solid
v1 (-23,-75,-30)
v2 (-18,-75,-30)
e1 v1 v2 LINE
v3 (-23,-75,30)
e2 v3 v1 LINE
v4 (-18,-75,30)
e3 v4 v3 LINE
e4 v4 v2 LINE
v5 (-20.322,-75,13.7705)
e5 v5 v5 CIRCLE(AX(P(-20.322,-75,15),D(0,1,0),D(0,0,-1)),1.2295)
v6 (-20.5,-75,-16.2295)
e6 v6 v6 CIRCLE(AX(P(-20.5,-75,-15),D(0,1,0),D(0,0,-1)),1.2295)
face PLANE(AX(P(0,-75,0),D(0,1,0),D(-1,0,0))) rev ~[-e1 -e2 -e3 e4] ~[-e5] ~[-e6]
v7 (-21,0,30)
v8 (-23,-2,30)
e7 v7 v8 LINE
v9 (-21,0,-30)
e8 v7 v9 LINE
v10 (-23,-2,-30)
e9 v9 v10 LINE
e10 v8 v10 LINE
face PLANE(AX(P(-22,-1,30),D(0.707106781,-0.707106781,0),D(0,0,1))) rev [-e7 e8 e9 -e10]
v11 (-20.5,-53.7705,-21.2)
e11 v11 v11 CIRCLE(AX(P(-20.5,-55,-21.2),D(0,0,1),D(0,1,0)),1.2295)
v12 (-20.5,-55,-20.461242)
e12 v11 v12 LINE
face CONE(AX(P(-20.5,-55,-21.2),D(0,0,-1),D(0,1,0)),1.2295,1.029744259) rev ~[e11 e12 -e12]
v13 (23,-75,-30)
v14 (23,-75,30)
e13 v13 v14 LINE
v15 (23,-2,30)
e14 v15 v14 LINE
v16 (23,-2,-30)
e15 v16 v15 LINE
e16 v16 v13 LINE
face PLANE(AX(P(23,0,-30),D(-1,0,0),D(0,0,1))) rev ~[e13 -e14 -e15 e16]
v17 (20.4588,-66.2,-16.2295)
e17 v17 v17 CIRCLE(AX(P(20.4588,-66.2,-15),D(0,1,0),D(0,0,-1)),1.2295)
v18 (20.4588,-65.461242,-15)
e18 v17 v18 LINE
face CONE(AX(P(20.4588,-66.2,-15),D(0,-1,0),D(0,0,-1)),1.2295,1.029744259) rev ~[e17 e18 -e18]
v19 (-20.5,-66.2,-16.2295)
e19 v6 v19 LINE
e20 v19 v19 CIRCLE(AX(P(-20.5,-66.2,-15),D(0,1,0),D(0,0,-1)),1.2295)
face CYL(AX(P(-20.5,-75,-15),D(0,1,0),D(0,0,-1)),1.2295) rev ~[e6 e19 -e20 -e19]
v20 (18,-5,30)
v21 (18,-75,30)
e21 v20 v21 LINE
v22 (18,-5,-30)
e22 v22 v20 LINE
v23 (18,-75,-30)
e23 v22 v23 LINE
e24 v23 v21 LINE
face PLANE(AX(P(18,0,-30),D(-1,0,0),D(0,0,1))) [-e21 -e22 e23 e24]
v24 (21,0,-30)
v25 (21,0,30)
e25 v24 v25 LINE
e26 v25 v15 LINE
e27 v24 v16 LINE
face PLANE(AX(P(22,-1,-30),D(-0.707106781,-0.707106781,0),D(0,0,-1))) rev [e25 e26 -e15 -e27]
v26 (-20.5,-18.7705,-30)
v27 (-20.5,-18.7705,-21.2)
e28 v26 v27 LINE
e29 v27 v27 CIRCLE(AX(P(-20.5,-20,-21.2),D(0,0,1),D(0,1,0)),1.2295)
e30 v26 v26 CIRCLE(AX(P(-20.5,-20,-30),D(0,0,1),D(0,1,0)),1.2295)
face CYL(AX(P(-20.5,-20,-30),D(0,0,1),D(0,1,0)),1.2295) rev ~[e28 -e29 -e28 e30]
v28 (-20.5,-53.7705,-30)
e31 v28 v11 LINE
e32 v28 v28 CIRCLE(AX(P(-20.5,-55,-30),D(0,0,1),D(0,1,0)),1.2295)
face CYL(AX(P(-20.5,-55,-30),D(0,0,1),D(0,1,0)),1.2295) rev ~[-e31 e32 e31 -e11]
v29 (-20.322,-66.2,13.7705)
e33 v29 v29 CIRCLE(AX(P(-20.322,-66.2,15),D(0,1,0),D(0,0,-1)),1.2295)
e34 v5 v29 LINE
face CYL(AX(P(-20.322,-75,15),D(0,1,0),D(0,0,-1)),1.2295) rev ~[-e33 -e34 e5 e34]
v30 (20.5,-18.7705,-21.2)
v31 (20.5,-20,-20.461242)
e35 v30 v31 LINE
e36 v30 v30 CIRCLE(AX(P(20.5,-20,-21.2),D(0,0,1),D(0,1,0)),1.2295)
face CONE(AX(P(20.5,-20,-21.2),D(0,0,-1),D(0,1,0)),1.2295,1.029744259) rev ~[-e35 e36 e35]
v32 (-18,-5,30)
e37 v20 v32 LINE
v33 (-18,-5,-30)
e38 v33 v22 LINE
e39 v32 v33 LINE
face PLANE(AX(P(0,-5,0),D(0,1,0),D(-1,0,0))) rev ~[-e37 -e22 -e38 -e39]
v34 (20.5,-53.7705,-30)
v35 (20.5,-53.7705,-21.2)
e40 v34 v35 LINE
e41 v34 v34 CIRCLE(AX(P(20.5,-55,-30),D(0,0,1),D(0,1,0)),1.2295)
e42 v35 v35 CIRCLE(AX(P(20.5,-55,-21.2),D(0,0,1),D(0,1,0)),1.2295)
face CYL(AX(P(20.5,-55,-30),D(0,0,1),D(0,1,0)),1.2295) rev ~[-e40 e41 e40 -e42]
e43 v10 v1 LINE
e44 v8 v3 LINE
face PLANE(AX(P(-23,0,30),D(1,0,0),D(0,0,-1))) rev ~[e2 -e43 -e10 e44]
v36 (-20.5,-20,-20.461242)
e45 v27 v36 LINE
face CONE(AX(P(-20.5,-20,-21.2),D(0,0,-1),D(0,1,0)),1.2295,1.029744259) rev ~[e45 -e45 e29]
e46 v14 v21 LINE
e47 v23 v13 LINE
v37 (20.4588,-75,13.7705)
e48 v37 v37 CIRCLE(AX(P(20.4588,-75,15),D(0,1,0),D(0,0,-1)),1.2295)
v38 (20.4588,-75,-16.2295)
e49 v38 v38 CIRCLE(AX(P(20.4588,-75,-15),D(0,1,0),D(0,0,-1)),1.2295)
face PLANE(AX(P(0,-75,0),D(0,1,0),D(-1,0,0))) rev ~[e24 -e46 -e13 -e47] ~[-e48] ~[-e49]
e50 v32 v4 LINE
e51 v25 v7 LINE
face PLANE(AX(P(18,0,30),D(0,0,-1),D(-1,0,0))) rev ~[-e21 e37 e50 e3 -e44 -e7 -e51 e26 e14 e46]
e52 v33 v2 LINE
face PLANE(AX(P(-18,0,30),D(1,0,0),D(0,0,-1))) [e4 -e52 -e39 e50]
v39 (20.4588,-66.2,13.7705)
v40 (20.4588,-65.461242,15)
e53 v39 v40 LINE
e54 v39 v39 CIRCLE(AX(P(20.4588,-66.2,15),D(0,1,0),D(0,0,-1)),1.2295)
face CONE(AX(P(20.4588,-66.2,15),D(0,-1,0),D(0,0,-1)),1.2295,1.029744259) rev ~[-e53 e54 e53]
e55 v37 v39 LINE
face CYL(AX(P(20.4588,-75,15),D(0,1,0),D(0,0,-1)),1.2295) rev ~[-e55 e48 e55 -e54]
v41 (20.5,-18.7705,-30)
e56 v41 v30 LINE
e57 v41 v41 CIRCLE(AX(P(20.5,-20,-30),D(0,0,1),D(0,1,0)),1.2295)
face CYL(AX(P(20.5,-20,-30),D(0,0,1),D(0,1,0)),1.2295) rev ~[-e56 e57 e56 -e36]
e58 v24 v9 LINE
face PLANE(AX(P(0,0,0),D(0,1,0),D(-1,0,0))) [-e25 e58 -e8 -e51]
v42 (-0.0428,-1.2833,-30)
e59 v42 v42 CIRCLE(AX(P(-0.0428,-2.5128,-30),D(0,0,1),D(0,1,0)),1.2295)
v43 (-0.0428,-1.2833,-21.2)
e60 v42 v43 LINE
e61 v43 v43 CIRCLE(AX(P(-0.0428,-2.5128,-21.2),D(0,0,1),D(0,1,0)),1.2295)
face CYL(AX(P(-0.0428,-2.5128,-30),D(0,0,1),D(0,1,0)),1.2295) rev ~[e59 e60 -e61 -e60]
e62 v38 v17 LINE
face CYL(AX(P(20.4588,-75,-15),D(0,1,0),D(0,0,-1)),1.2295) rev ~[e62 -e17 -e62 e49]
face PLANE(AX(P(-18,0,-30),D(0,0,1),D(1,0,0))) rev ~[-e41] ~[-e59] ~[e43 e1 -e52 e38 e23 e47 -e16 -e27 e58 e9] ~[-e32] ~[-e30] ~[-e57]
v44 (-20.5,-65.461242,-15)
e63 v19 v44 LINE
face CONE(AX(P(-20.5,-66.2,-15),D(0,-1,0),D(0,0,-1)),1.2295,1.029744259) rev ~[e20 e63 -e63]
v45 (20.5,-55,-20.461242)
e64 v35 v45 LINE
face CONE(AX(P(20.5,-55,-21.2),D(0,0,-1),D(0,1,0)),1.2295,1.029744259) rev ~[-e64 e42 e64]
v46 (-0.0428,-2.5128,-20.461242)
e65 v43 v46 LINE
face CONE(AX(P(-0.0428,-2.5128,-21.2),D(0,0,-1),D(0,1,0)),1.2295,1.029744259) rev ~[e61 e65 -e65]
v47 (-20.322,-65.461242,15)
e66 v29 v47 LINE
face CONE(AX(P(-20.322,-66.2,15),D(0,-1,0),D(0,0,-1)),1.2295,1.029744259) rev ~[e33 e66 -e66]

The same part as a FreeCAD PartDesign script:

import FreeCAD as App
import Part
import Sketcher

V = App.Vector
Q = App.Units.Quantity


def edges_at(feature, points):
    """Names of the edges that pass closest to the given points."""
    edges = feature.Shape.Edges
    near = lambda p: min(range(len(edges)), key=lambda i: edges[i].distToShape(Part.Vertex(*p))[0])
    return sorted({f"Edge{near(p) + 1}" for p in points})

doc = App.newDocument("Part")
body = doc.addObject("PartDesign::Body", "Body")

# Sketch on XZ plane
sketch1 = doc.addObject("Sketcher::SketchObject", "Sketch")
body.addObject(sketch1)
sketch1.AttachmentSupport = (doc.XZ_Plane, [""])
sketch1.MapMode = "FlatFace"
sketch1.addGeometry(Part.LineSegment(V(-18, 30, 0), V(18, 30, 0)), False)
sketch1.addGeometry(Part.LineSegment(V(18, 30, 0), V(18, -30, 0)), False)
sketch1.addGeometry(Part.LineSegment(V(18, -30, 0), V(-18, -30, 0)), False)
sketch1.addGeometry(Part.LineSegment(V(-18, -30, 0), V(-18, 30, 0)), False)
sketch1.addConstraint(Sketcher.Constraint("Coincident", 0, 2, 1, 1))
sketch1.addConstraint(Sketcher.Constraint("Coincident", 1, 2, 2, 1))
sketch1.addConstraint(Sketcher.Constraint("Coincident", 2, 2, 3, 1))
sketch1.addConstraint(Sketcher.Constraint("Coincident", 3, 2, 0, 1))
sketch1.addConstraint(Sketcher.Constraint("Horizontal", 0))
sketch1.addConstraint(Sketcher.Constraint("Vertical", 1))
sketch1.addConstraint(Sketcher.Constraint("Horizontal", 2))
sketch1.addConstraint(Sketcher.Constraint("Vertical", 3))
sketch1.addConstraint(Sketcher.Constraint("Symmetric", 0, 2, 2, 2, -1, 1))
sketch1.addConstraint(Sketcher.Constraint("DistanceX", 0, 1, 0, 2, Q("36 mm")))
sketch1.addConstraint(Sketcher.Constraint("DistanceY", 1, 2, 1, 1, Q("60 mm")))
pad1 = doc.addObject("PartDesign::Pad", "Pad")
body.addObject(pad1)
pad1.Profile = sketch1
pad1.Length = 5

# Sketch on XZ plane
sketch2 = doc.addObject("Sketcher::SketchObject", "Sketch001")
body.addObject(sketch2)
sketch2.AttachmentSupport = (doc.XZ_Plane, [""])
sketch2.MapMode = "FlatFace"
sketch2.addGeometry(Part.LineSegment(V(18, 30, 0), V(23, 30, 0)), False)
sketch2.addGeometry(Part.LineSegment(V(23, 30, 0), V(23, -30, 0)), False)
sketch2.addGeometry(Part.LineSegment(V(23, -30, 0), V(18, -30, 0)), False)
sketch2.addGeometry(Part.LineSegment(V(18, -30, 0), V(18, 30, 0)), False)
sketch2.addGeometry(Part.LineSegment(V(-23, 30, 0), V(-18, 30, 0)), False)
sketch2.addGeometry(Part.LineSegment(V(-18, 30, 0), V(-18, -30, 0)), False)
sketch2.addGeometry(Part.LineSegment(V(-18, -30, 0), V(-23, -30, 0)), False)
sketch2.addGeometry(Part.LineSegment(V(-23, -30, 0), V(-23, 30, 0)), False)
sketch2.addConstraint(Sketcher.Constraint("Coincident", 0, 2, 1, 1))
sketch2.addConstraint(Sketcher.Constraint("Coincident", 1, 2, 2, 1))
sketch2.addConstraint(Sketcher.Constraint("Coincident", 2, 2, 3, 1))
sketch2.addConstraint(Sketcher.Constraint("Coincident", 3, 2, 0, 1))
sketch2.addConstraint(Sketcher.Constraint("Coincident", 4, 2, 5, 1))
sketch2.addConstraint(Sketcher.Constraint("Coincident", 5, 2, 6, 1))
sketch2.addConstraint(Sketcher.Constraint("Coincident", 6, 2, 7, 1))
sketch2.addConstraint(Sketcher.Constraint("Coincident", 7, 2, 4, 1))
sketch2.addConstraint(Sketcher.Constraint("Horizontal", 0))
sketch2.addConstraint(Sketcher.Constraint("Vertical", 1))
sketch2.addConstraint(Sketcher.Constraint("Horizontal", 2))
sketch2.addConstraint(Sketcher.Constraint("Vertical", 3))
sketch2.addConstraint(Sketcher.Constraint("Horizontal", 4))
sketch2.addConstraint(Sketcher.Constraint("Vertical", 5))
sketch2.addConstraint(Sketcher.Constraint("Horizontal", 6))
sketch2.addConstraint(Sketcher.Constraint("Vertical", 7))
sketch2.addConstraint(Sketcher.Constraint("Symmetric", 2, 2, 4, 2, -1, 1))
sketch2.addConstraint(Sketcher.Constraint("Symmetric", 0, 2, 6, 2, -1, 1))
sketch2.addConstraint(Sketcher.Constraint("Horizontal", 3, 2, 4, 2))
sketch2.addConstraint(Sketcher.Constraint("DistanceX", 0, 1, 0, 2, Q("5 mm")))
sketch2.addConstraint(Sketcher.Constraint("DistanceY", 1, 2, 1, 1, Q("60 mm")))
sketch2.addConstraint(Sketcher.Constraint("DistanceX", 4, 2, 3, 2, Q("36 mm")))
pad2 = doc.addObject("PartDesign::Pad", "Pad001")
body.addObject(pad2)
pad2.Profile = sketch2
pad2.Length = 75

# Sketch on XZ plane
sketch3 = doc.addObject("Sketcher::SketchObject", "Sketch002")
body.addObject(sketch3)
sketch3.AttachmentSupport = (doc.XZ_Plane, [""])
sketch3.MapMode = "FlatFace"
sketch3.AttachmentOffset = App.Placement(V(0, 0, 75), App.Rotation())
sketch3.addGeometry(Part.Circle(V(-20.5, -15, 0), V(0, 0, 1), 1.2), False)
sketch3.addConstraint(Sketcher.Constraint("Diameter", 0, Q("2.459 mm")))
sketch3.addConstraint(Sketcher.Constraint("DistanceY", 0, 3, -1, 1, Q("15 mm")))
sketch3.addConstraint(Sketcher.Constraint("DistanceX", 0, 3, -1, 1, Q("20.5 mm")))
doc.recompute()
hole = doc.addObject("PartDesign::Hole", "Hole")
body.addObject(hole)
hole.Profile = sketch3
hole.ThreadType = "None"
hole.Diameter = 2.459
hole.DepthType = "Dimension"
hole.Depth = 8.8
hole.DrillPoint = "Angled"
hole.DrillPointAngle = 118

# Sketch on XZ plane
sketch4 = doc.addObject("Sketcher::SketchObject", "Sketch003")
body.addObject(sketch4)
sketch4.AttachmentSupport = (doc.XZ_Plane, [""])
sketch4.MapMode = "FlatFace"
sketch4.AttachmentOffset = App.Placement(V(0, 0, 75), App.Rotation())
sketch4.addGeometry(Part.Circle(V(-20.3, 15, 0), V(0, 0, 1), 1.2), False)
sketch4.addConstraint(Sketcher.Constraint("Diameter", 0, Q("2.459 mm")))
sketch4.addConstraint(Sketcher.Constraint("DistanceY", -1, 1, 0, 3, Q("15 mm")))
sketch4.addConstraint(Sketcher.Constraint("DistanceX", 0, 3, -1, 1, Q("20.322 mm")))
doc.recompute()
hole2 = doc.addObject("PartDesign::Hole", "Hole001")
body.addObject(hole2)
hole2.Profile = sketch4
hole2.ThreadType = "None"
hole2.Diameter = 2.459
hole2.DepthType = "Dimension"
hole2.Depth = 8.8
hole2.DrillPoint = "Angled"
hole2.DrillPointAngle = 118

# Sketch on XZ plane
sketch5 = doc.addObject("Sketcher::SketchObject", "Sketch004")
body.addObject(sketch5)
sketch5.AttachmentSupport = (doc.XZ_Plane, [""])
sketch5.MapMode = "FlatFace"
sketch5.AttachmentOffset = App.Placement(V(0, 0, 75), App.Rotation())
sketch5.addGeometry(Part.Circle(V(20.5, 15, 0), V(0, 0, 1), 1.2), False)
sketch5.addGeometry(Part.Circle(V(20.5, -15, 0), V(0, 0, 1), 1.2), False)
sketch5.addConstraint(Sketcher.Constraint("Equal", 0, 1))
sketch5.addConstraint(Sketcher.Constraint("Symmetric", 0, 3, 1, 3, -1))
sketch5.addConstraint(Sketcher.Constraint("Diameter", 0, Q("2.459 mm")))
sketch5.addConstraint(Sketcher.Constraint("DistanceY", -1, 1, 0, 3, Q("15 mm")))
sketch5.addConstraint(Sketcher.Constraint("DistanceX", -1, 1, 0, 3, Q("20.4588 mm")))
doc.recompute()
hole3 = doc.addObject("PartDesign::Hole", "Hole002")
body.addObject(hole3)
hole3.Profile = sketch5
hole3.ThreadType = "None"
hole3.Diameter = 2.459
hole3.DepthType = "Dimension"
hole3.Depth = 8.8
hole3.DrillPoint = "Angled"
hole3.DrillPointAngle = 118

# Sketch on XY plane
sketch6 = doc.addObject("Sketcher::SketchObject", "Sketch005")
body.addObject(sketch6)
sketch6.AttachmentSupport = (doc.XY_Plane, [""])
sketch6.MapMode = "FlatFace"
sketch6.AttachmentOffset = App.Placement(V(0, 0, -30), App.Rotation())
sketch6.addGeometry(Part.Circle(V(0, -2.5, 0), V(0, 0, 1), 1.2), False)
sketch6.addConstraint(Sketcher.Constraint("Diameter", 0, Q("2.459 mm")))
sketch6.addConstraint(Sketcher.Constraint("DistanceX", 0, 3, -1, 1, Q("0.0428 mm")))
sketch6.addConstraint(Sketcher.Constraint("DistanceY", 0, 3, -1, 1, Q("2.5128 mm")))
doc.recompute()
hole4 = doc.addObject("PartDesign::Hole", "Hole003")
body.addObject(hole4)
hole4.Profile = sketch6
hole4.ThreadType = "None"
hole4.Diameter = 2.459
hole4.DepthType = "Dimension"
hole4.Depth = 8.8
hole4.DrillPoint = "Angled"
hole4.DrillPointAngle = 118
hole4.Reversed = True

# Sketch on XY plane
sketch7 = doc.addObject("Sketcher::SketchObject", "Sketch006")
body.addObject(sketch7)
sketch7.AttachmentSupport = (doc.XY_Plane, [""])
sketch7.MapMode = "FlatFace"
sketch7.AttachmentOffset = App.Placement(V(0, 0, -30), App.Rotation())
sketch7.addGeometry(Part.Circle(V(20.5, -55, 0), V(0, 0, 1), 1.2), False)
sketch7.addConstraint(Sketcher.Constraint("Diameter", 0, Q("2.459 mm")))
sketch7.addConstraint(Sketcher.Constraint("DistanceY", 0, 3, -1, 1, Q("55 mm")))
sketch7.addConstraint(Sketcher.Constraint("DistanceX", -1, 1, 0, 3, Q("20.5 mm")))
doc.recompute()
hole5 = doc.addObject("PartDesign::Hole", "Hole004")
body.addObject(hole5)
hole5.Profile = sketch7
hole5.ThreadType = "None"
hole5.Diameter = 2.459
hole5.DepthType = "Dimension"
hole5.Depth = 8.8
hole5.DrillPoint = "Angled"
hole5.DrillPointAngle = 118
hole5.Reversed = True

# Sketch on XY plane
sketch8 = doc.addObject("Sketcher::SketchObject", "Sketch007")
body.addObject(sketch8)
sketch8.AttachmentSupport = (doc.XY_Plane, [""])
sketch8.MapMode = "FlatFace"
sketch8.AttachmentOffset = App.Placement(V(0, 0, -30), App.Rotation())
sketch8.addGeometry(Part.Circle(V(-20.5, -55, 0), V(0, 0, 1), 1.2), False)
sketch8.addGeometry(Part.Circle(V(20.5, -20, 0), V(0, 0, 1), 1.2), False)
sketch8.addConstraint(Sketcher.Constraint("Equal", 0, 1))
sketch8.addConstraint(Sketcher.Constraint("Diameter", 0, Q("2.459 mm")))
sketch8.addConstraint(Sketcher.Constraint("DistanceY", 0, 3, -1, 1, Q("55 mm")))
sketch8.addConstraint(Sketcher.Constraint("DistanceY", 1, 3, -1, 1, Q("20 mm")))
sketch8.addConstraint(Sketcher.Constraint("DistanceX", 0, 3, 1, 3, Q("41 mm")))
sketch8.addConstraint(Sketcher.Constraint("DistanceX", 0, 3, -1, 1, Q("20.5 mm")))
doc.recompute()
hole6 = doc.addObject("PartDesign::Hole", "Hole005")
body.addObject(hole6)
hole6.Profile = sketch8
hole6.ThreadType = "None"
hole6.Diameter = 2.459
hole6.DepthType = "Dimension"
hole6.Depth = 8.8
hole6.DrillPoint = "Angled"
hole6.DrillPointAngle = 118
hole6.Reversed = True

# Sketch on XY plane
sketch9 = doc.addObject("Sketcher::SketchObject", "Sketch008")
body.addObject(sketch9)
sketch9.AttachmentSupport = (doc.XY_Plane, [""])
sketch9.MapMode = "FlatFace"
sketch9.AttachmentOffset = App.Placement(V(0, 0, -30), App.Rotation())
sketch9.addGeometry(Part.Circle(V(-20.5, -20, 0), V(0, 0, 1), 1.2), False)
sketch9.addConstraint(Sketcher.Constraint("Diameter", 0, Q("2.459 mm")))
sketch9.addConstraint(Sketcher.Constraint("DistanceY", 0, 3, -1, 1, Q("20 mm")))
sketch9.addConstraint(Sketcher.Constraint("DistanceX", 0, 3, -1, 1, Q("20.5 mm")))
doc.recompute()
hole7 = doc.addObject("PartDesign::Hole", "Hole006")
body.addObject(hole7)
hole7.Profile = sketch9
hole7.ThreadType = "None"
hole7.Diameter = 2.459
hole7.DepthType = "Dimension"
hole7.Depth = 8.8
hole7.DrillPoint = "Angled"
hole7.DrillPointAngle = 118
hole7.Reversed = True
doc.recompute()

chamfer = doc.addObject("PartDesign::Chamfer", "Chamfer")
body.addObject(chamfer)
chamfer.Base = (hole7, edges_at(hole7, [(23, 0, 0), (-23, 0, 0)]))
chamfer.Size = 2

doc.recompute()
